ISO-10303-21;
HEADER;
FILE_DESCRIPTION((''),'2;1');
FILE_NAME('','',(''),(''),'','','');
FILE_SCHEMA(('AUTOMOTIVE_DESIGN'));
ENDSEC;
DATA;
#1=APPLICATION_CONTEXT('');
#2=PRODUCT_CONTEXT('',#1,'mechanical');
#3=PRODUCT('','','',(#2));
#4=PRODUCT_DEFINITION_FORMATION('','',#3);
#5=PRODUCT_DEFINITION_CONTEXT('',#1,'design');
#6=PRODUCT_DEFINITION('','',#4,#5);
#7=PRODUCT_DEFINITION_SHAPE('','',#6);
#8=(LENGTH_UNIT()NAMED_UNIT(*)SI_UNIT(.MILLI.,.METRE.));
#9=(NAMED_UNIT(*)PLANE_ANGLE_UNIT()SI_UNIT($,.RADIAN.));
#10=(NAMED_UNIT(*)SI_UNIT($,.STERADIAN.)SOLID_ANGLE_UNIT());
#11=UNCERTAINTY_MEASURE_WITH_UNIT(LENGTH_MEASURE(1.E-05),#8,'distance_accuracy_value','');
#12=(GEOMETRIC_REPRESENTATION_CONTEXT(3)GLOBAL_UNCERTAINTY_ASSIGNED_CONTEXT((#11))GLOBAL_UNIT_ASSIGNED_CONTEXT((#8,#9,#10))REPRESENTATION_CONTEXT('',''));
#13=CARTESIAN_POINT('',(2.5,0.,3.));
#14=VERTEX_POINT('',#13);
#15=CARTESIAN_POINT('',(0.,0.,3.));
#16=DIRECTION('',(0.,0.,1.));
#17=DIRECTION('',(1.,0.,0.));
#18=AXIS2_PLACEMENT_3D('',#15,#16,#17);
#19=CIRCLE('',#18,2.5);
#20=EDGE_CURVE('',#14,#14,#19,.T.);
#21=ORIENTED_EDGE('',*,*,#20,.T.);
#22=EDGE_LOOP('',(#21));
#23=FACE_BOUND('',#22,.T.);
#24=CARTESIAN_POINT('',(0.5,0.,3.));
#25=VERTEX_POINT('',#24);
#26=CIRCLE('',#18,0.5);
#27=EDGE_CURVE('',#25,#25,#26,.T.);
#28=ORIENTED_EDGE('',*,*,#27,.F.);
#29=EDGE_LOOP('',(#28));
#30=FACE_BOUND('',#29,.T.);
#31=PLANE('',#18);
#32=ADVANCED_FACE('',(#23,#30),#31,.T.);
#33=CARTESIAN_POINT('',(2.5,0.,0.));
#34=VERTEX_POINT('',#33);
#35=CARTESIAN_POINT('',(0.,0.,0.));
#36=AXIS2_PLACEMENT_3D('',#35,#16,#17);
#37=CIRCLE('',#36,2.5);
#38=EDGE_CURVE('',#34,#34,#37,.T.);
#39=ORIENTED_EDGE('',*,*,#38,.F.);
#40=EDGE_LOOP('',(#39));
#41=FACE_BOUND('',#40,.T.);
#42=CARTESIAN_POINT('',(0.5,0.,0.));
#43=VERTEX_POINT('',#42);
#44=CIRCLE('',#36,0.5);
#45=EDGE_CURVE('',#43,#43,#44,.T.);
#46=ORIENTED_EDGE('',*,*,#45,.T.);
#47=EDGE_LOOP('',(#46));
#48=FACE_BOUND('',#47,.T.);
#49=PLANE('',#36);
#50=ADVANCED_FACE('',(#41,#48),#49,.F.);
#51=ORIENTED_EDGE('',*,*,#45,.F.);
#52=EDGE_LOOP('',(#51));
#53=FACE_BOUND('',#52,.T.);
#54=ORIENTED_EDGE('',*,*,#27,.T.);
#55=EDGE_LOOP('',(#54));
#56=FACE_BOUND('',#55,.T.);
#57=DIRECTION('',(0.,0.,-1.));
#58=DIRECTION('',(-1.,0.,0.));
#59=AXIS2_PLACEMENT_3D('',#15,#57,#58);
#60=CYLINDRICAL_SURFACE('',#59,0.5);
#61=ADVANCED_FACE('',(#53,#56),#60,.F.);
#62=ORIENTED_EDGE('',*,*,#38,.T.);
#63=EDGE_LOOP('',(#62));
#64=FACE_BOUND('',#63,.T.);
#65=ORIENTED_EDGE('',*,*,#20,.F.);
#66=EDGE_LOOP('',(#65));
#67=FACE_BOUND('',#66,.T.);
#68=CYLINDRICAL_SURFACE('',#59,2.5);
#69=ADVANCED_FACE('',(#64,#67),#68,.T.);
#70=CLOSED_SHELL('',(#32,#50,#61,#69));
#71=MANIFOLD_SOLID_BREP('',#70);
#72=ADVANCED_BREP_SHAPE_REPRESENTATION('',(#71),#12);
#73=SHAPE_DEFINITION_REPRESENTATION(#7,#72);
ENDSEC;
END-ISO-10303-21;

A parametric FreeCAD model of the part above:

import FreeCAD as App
import Part
import Sketcher

doc = App.newDocument("Part")
params = doc.addObject("Spreadsheet::Sheet", "Params")
for row, (alias, value) in enumerate([
    ("sketch1_diameter", "5 mm"),
    ("sketch1_diameter2", "1 mm"),
    ("pad1_length", "3 mm"),
], start=1):
    params.set(f"A{row}", alias)
    params.set(f"B{row}", "=" + value)
    params.setAlias(f"B{row}", alias)

body = doc.addObject("PartDesign::Body", "Body")

# Sketch on XY plane
sketch1 = body.newObject("Sketcher::SketchObject", "Sketch")
sketch1.AttachmentSupport = (doc.getObject("XY_Plane"), [""])
sketch1.MapMode = "FlatFace"
sketch1.addGeometry([
    Part.Circle(App.Vector(0, 0, 0), App.Vector(0, 0, 1), 2.5),
    Part.Circle(App.Vector(0, 0, 0), App.Vector(0, 0, 1), 0.5),
], False)
sketch1.addConstraint([
    Sketcher.Constraint("Coincident", 0, 3, -1, 1),
    Sketcher.Constraint("Coincident", 1, 3, -1, 1),
    Sketcher.Constraint("Diameter", 0, 5.0),
    Sketcher.Constraint("Diameter", 1, 1.0),
])
sketch1.setExpression("Constraints[2]", "Params.sketch1_diameter")
sketch1.setExpression("Constraints[3]", "Params.sketch1_diameter2")
pad1 = body.newObject("PartDesign::Pad", "Pad")
pad1.Profile = sketch1
pad1.setExpression("Length", "Params.pad1_length")

doc.recompute()
